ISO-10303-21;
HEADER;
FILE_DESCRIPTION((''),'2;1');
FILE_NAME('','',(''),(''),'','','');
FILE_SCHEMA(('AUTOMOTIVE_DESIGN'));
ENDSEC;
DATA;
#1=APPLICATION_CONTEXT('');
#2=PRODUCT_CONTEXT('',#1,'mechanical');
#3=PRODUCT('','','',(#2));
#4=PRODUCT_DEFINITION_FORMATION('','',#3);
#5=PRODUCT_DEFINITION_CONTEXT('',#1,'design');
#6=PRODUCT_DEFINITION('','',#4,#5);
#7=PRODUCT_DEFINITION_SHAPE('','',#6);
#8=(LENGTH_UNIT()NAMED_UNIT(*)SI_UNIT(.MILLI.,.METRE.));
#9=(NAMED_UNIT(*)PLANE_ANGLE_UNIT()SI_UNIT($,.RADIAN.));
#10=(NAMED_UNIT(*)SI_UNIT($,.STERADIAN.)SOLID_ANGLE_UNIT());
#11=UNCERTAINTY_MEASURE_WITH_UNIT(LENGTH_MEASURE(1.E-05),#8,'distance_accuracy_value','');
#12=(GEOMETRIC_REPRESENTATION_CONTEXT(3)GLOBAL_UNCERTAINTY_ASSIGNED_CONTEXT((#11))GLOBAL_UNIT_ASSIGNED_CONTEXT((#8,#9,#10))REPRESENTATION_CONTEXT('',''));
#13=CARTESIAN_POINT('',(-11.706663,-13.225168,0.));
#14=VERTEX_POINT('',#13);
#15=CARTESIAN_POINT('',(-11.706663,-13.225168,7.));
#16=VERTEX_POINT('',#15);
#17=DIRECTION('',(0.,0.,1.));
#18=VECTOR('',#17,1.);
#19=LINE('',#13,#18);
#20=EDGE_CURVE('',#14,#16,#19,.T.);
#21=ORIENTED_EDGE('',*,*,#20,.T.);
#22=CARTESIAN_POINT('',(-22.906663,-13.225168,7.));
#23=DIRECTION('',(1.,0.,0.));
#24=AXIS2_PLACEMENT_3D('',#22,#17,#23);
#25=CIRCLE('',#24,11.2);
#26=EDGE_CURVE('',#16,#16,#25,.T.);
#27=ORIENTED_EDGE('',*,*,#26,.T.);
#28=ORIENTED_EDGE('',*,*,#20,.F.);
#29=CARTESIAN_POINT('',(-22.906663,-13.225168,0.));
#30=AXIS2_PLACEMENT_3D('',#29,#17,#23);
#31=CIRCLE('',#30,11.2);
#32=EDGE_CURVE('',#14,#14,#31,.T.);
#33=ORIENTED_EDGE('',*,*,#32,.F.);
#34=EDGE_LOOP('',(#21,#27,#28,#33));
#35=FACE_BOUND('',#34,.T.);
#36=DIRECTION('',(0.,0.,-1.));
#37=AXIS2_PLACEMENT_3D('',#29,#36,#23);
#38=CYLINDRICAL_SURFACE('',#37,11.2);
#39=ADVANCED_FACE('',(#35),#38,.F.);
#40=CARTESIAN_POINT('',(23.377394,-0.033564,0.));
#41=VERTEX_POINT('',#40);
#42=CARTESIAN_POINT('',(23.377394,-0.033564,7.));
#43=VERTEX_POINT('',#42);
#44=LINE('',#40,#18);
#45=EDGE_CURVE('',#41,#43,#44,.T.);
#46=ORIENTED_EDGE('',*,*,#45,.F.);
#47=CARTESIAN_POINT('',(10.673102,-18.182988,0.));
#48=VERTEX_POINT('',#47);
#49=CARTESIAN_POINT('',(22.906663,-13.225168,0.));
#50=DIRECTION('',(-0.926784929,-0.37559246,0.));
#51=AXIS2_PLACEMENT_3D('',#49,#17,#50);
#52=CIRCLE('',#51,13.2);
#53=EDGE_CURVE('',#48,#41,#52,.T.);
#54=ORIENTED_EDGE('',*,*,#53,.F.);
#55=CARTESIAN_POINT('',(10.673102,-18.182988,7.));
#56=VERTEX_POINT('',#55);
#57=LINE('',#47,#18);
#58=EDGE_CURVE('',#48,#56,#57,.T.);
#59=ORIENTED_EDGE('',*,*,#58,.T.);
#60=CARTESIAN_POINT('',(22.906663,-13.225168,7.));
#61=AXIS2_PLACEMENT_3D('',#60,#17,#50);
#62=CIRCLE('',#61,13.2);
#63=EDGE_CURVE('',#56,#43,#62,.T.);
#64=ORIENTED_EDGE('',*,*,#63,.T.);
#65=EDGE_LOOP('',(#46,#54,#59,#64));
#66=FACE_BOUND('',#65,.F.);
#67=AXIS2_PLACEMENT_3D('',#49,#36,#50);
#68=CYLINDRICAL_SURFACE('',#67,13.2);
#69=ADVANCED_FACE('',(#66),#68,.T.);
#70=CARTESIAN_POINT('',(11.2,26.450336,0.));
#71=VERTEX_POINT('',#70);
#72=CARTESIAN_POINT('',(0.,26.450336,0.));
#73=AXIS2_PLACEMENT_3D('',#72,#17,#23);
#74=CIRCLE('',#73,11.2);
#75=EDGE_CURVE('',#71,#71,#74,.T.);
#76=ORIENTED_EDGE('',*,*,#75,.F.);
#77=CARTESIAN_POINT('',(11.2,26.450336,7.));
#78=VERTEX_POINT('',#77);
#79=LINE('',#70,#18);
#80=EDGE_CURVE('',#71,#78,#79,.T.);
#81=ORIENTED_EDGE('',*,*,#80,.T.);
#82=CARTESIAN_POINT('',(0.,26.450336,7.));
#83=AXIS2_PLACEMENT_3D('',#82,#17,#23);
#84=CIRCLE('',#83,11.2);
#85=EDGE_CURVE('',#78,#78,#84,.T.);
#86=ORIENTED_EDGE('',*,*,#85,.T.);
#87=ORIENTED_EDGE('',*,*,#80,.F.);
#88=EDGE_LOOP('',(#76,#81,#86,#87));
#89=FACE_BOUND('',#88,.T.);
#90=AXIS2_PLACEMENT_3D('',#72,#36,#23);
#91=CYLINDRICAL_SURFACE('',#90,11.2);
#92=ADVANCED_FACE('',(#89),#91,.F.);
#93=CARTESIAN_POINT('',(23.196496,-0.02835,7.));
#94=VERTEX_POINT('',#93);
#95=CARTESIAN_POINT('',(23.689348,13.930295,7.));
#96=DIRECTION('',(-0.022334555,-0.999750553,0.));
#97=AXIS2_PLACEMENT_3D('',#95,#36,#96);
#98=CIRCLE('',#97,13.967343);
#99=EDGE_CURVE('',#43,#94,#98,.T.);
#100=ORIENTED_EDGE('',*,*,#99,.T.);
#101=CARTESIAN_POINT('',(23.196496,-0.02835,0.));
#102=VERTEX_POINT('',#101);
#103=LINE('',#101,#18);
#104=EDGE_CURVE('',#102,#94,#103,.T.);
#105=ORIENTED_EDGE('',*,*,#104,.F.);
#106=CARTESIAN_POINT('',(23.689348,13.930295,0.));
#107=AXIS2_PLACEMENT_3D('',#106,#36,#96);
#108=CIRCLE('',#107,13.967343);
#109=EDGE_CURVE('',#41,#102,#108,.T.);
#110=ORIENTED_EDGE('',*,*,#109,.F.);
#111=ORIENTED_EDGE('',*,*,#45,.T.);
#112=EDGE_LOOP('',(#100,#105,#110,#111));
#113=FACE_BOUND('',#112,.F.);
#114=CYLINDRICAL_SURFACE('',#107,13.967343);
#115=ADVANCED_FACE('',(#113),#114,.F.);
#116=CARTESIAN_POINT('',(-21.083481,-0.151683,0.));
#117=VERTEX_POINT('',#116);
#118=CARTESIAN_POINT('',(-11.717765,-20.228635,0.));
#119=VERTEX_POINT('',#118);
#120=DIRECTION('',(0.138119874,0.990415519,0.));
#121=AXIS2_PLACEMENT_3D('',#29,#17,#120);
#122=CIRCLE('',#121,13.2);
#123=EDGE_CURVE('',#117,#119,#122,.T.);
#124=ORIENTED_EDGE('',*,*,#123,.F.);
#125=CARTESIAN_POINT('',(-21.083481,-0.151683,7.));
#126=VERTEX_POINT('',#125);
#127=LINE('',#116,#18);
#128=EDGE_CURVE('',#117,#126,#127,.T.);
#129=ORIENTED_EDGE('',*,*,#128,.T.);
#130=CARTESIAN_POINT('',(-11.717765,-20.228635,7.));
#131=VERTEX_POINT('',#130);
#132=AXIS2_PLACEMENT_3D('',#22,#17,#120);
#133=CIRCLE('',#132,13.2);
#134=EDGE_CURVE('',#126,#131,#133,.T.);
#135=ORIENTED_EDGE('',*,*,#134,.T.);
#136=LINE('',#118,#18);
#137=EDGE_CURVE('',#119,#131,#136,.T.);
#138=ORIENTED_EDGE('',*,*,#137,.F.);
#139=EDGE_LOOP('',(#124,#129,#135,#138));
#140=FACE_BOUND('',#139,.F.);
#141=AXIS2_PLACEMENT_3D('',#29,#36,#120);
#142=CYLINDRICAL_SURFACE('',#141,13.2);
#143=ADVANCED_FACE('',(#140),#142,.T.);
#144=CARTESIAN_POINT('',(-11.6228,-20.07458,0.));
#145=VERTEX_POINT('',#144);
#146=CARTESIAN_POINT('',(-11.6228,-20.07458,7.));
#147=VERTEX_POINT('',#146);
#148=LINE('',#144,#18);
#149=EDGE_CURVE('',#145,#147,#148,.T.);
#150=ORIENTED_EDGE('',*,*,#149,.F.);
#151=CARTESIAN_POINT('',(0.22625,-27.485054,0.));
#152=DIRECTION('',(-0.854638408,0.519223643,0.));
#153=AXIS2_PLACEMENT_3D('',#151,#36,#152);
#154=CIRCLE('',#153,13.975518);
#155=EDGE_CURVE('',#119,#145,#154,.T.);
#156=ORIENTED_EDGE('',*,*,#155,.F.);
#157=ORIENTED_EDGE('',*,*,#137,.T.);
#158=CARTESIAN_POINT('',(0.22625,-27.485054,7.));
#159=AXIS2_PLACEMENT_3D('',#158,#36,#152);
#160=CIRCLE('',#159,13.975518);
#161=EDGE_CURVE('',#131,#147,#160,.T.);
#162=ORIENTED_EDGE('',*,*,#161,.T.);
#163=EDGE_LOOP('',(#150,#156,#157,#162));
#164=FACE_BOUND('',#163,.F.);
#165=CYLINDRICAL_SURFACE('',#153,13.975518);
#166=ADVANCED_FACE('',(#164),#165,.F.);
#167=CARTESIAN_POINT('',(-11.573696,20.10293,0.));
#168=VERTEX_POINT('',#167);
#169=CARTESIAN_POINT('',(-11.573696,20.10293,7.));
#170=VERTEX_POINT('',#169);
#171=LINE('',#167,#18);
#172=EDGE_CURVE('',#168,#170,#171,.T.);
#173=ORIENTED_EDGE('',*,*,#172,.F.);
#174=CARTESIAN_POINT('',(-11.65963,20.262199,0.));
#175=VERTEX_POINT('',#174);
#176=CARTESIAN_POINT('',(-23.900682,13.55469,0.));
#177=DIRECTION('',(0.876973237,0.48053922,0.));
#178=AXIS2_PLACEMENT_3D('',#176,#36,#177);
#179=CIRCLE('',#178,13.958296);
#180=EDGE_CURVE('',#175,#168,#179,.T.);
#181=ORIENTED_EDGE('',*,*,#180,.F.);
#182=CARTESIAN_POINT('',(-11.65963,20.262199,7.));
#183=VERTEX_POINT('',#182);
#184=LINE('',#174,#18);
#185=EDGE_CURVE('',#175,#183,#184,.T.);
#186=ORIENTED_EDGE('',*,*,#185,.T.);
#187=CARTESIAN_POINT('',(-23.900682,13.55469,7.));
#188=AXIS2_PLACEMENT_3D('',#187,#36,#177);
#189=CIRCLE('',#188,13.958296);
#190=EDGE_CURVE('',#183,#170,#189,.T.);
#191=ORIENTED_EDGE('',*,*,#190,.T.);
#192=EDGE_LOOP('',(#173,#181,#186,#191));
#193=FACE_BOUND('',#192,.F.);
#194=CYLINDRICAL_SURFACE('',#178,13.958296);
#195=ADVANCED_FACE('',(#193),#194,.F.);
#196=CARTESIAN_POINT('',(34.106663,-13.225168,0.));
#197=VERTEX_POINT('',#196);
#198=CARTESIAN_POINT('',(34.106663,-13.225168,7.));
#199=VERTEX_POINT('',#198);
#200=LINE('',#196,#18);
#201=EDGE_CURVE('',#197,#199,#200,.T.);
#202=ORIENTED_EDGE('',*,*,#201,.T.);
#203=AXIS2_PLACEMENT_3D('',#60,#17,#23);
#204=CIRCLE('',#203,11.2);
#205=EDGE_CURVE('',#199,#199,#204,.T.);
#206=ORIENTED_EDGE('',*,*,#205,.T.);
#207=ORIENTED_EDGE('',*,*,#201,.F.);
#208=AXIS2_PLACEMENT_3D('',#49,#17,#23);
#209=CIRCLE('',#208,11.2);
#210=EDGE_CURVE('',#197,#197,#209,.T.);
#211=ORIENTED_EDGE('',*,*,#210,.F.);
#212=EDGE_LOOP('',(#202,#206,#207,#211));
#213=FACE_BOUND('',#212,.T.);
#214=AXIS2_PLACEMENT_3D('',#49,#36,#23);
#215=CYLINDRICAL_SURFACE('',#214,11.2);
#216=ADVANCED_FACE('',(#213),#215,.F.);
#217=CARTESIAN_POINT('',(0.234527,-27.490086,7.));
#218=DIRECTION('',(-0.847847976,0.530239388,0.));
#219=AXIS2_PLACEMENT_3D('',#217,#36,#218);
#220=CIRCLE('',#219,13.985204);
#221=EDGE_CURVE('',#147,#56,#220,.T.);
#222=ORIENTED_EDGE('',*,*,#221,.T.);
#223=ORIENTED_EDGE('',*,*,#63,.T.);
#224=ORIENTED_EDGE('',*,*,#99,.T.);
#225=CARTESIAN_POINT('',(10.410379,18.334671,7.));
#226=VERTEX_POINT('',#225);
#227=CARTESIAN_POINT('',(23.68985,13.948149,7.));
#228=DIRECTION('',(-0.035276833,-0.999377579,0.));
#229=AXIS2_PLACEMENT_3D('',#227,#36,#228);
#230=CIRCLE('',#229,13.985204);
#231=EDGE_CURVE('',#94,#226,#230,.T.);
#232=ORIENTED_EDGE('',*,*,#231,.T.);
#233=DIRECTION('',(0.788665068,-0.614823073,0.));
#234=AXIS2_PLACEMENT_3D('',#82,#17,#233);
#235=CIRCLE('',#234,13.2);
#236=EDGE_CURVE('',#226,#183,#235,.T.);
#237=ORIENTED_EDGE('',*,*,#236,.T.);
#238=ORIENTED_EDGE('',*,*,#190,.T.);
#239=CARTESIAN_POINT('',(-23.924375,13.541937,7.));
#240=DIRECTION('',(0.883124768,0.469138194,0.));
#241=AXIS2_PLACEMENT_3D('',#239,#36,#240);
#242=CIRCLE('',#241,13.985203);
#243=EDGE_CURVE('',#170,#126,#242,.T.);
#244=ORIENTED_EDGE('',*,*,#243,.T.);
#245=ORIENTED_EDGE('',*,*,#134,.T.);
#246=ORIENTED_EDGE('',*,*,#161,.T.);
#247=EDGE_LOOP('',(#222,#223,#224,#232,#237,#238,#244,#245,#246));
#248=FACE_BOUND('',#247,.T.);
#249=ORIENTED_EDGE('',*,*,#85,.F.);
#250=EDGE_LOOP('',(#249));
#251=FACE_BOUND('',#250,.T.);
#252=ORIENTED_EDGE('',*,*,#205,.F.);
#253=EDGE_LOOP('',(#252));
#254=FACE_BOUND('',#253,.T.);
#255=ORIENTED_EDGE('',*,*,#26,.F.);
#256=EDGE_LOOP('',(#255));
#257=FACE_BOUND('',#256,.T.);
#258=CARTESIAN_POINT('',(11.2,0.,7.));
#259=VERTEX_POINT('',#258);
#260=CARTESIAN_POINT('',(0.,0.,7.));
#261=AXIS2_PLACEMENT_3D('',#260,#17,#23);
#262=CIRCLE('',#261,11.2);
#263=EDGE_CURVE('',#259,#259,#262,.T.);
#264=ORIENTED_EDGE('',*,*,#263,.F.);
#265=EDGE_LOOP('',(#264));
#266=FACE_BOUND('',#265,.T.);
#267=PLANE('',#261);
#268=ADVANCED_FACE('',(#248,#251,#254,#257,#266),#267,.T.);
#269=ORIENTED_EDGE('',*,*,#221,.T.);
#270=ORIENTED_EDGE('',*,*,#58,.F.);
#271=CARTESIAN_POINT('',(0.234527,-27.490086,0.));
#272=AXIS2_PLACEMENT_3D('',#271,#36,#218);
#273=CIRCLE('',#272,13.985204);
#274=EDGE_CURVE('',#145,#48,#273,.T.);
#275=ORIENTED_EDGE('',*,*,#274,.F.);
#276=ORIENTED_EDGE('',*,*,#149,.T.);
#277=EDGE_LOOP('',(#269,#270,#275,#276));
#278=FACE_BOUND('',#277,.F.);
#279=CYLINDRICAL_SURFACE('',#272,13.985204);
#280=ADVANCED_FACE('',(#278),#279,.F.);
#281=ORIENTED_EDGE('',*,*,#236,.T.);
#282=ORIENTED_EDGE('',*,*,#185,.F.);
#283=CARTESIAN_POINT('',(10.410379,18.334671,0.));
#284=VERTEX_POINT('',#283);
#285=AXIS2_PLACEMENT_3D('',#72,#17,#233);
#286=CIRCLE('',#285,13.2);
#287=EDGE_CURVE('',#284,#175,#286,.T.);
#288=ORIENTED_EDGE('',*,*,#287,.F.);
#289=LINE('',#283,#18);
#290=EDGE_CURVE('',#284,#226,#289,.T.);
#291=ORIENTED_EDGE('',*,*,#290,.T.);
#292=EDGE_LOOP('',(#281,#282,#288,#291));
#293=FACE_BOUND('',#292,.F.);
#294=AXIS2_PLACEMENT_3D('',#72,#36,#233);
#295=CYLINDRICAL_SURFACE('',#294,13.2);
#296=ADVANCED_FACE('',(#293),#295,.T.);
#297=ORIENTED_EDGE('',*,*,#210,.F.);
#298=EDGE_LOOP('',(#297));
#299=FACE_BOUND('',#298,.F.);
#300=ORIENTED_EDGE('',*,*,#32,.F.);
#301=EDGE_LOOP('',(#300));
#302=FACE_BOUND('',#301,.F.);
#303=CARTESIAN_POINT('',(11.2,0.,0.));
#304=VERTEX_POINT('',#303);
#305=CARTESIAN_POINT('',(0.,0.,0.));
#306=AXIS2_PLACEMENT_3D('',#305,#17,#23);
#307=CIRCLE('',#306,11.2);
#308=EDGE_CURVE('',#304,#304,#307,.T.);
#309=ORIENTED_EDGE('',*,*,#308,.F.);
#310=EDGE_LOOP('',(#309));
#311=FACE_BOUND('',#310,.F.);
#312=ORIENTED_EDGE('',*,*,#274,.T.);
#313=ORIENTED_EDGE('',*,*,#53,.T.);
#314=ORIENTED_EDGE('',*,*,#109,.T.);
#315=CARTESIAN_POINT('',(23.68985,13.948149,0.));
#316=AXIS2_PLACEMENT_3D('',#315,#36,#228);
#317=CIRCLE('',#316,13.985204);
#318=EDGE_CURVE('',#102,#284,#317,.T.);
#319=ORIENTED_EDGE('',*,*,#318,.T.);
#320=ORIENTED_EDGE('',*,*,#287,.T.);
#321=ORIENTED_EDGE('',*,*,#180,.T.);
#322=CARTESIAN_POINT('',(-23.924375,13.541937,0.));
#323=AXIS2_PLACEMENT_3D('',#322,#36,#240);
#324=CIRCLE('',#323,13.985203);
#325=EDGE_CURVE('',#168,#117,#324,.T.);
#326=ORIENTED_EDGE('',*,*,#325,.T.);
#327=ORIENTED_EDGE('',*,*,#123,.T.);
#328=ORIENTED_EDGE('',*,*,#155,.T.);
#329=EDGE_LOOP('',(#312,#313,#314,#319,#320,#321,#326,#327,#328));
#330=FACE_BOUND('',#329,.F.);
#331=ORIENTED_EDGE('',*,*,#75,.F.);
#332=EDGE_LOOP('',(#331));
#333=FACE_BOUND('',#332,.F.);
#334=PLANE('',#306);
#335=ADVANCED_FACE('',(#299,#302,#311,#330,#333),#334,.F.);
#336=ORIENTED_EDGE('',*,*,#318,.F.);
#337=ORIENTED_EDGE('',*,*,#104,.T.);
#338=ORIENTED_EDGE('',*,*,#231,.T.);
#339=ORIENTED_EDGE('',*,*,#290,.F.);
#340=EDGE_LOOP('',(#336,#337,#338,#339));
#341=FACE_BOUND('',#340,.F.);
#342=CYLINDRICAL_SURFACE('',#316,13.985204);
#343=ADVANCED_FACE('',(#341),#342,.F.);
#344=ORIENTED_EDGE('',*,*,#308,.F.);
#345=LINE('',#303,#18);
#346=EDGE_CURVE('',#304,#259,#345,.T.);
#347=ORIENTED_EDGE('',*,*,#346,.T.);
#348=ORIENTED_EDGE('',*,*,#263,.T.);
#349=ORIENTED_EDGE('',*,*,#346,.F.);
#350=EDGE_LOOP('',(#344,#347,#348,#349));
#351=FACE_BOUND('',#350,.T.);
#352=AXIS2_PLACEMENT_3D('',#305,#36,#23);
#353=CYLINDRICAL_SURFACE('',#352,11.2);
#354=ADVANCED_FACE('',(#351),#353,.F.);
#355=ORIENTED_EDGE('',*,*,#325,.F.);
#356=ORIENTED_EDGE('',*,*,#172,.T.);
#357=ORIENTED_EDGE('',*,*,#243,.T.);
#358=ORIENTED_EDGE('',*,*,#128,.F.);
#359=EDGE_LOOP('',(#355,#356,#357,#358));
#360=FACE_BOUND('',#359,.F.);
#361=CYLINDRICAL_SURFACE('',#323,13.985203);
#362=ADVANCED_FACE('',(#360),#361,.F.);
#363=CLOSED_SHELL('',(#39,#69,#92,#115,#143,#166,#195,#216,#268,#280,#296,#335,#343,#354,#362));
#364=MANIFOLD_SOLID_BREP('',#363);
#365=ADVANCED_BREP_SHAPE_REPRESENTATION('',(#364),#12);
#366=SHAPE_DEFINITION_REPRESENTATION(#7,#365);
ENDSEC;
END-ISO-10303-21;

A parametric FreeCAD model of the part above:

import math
import FreeCAD as App
import Part
import Sketcher

doc = App.newDocument("Part")
body = doc.addObject("PartDesign::Body", "Body")

sketch1 = body.newObject("Sketcher::SketchObject", "Sketch")
sketch1.AttachmentSupport = (doc.getObject("XY_Plane"), [""])
sketch1.MapMode = "FlatFace"
sketch1.addGeometry([
    Part.ArcOfCircle(Part.Circle(App.Vector(23.68985, 13.948149, 0), App.Vector(0, 0, 1), 13.985204), math.radians(161.720393), math.radians(267.978367)),
    Part.ArcOfCircle(Part.Circle(App.Vector(0, 26.450336, 0), App.Vector(0, 0, 1), 13.2), math.radians(-37.939066), math.radians(207.956315)),
    Part.ArcOfCircle(Part.Circle(App.Vector(-23.900682, 13.55469, 0), App.Vector(0, 0, 1), 13.958296), math.radians(27.977765), math.radians(28.720625)),
    Part.ArcOfCircle(Part.Circle(App.Vector(-23.924375, 13.541937, 0), App.Vector(0, 0, 1), 13.985203), math.radians(-78.279612), math.radians(27.978369)),
    Part.ArcOfCircle(Part.Circle(App.Vector(-22.906663, -13.225168, 0), App.Vector(0, 0, 1), 13.2), math.radians(82.060934), math.radians(327.956315)),
    Part.ArcOfCircle(Part.Circle(App.Vector(0.22625, -27.485054, 0), App.Vector(0, 0, 1), 13.975518), math.radians(147.977865), math.radians(148.719811)),
    Part.ArcOfCircle(Part.Circle(App.Vector(0.234527, -27.490086, 0), App.Vector(0, 0, 1), 13.985204), math.radians(41.720392), math.radians(147.978369)),
    Part.ArcOfCircle(Part.Circle(App.Vector(22.906663, -13.225168, 0), App.Vector(0, 0, 1), 13.2), math.radians(-157.939065), math.radians(87.956316)),
    Part.ArcOfCircle(Part.Circle(App.Vector(23.689348, 13.930295, 0), App.Vector(0, 0, 1), 13.967343), math.radians(-92.022162), math.radians(-91.279782)),
    Part.Circle(App.Vector(-22.906663, -13.225168, 0), App.Vector(0, 0, 1), 11.2),
    Part.Circle(App.Vector(22.906663, -13.225168, 0), App.Vector(0, 0, 1), 11.2),
    Part.Circle(App.Vector(0, 0, 0), App.Vector(0, 0, 1), 11.2),
    Part.Circle(App.Vector(0, 26.450336, 0), App.Vector(0, 0, 1), 11.2),
], False)
sketch1.addConstraint([
    Sketcher.Constraint("Coincident", 0, 1, 1, 1),
    Sketcher.Constraint("Coincident", 1, 2, 2, 2),
    Sketcher.Constraint("Coincident", 2, 1, 3, 2),
    Sketcher.Constraint("Coincident", 3, 1, 4, 1),
    Sketcher.Constraint("Coincident", 4, 2, 5, 2),
    Sketcher.Constraint("Coincident", 5, 1, 6, 2),
    Sketcher.Constraint("Coincident", 6, 1, 7, 1),
    Sketcher.Constraint("Coincident", 7, 2, 8, 2),
    Sketcher.Constraint("Coincident", 8, 1, 0, 2),
    Sketcher.Constraint("Coincident", 11, 3, -1, 1),
    Sketcher.Constraint("Coincident", 9, 3, 4, 3),
    Sketcher.Constraint("Coincident", 10, 3, 7, 3),
    Sketcher.Constraint("Coincident", 12, 3, 1, 3),
    Sketcher.Constraint("PointOnObject", 1, 3, -2),
    Sketcher.Constraint("Diameter", 9, 22.4),
    Sketcher.Constraint("Diameter", 10, 22.4),
    Sketcher.Constraint("Diameter", 11, 22.4),
    Sketcher.Constraint("Diameter", 12, 22.4),
    Sketcher.Constraint("Radius", 1, 13.2),
    Sketcher.Constraint("Radius", 4, 13.2),
    Sketcher.Constraint("Radius", 7, 13.2),
    Sketcher.Constraint("Radius", 5, 13.975518),
    Sketcher.Constraint("Radius", 0, 13.985204),
    Sketcher.Constraint("Radius", 2, 13.958296),
    Sketcher.Constraint("Radius", 3, 13.985203),
    Sketcher.Constraint("Radius", 6, 13.985204),
    Sketcher.Constraint("Radius", 8, 13.967343),
    Sketcher.Constraint("DistanceY", -1, 1, 1, 2, 20.262199),
    Sketcher.Constraint("DistanceX", 5, 1, -1, 1, 11.6228),
    Sketcher.Constraint("DistanceX", -1, 1, 6, 1, 10.673102),
    Sketcher.Constraint("DistanceY", 3, 3, 1, 3, 12.908399),
    Sketcher.Constraint("DistanceX", 5, 3, 0, 3, 23.4636),
    Sketcher.Constraint("DistanceX", 8, 3, 0, 3, 0.000501),
    Sketcher.Constraint("DistanceX", 2, 3, 3, 1, 2.817201),
    Sketcher.Constraint("DistanceX", 4, 3, 4, 2, 11.188898),
    Sketcher.Constraint("DistanceX", 8, 1, 7, 2, 0.180898),
    Sketcher.Constraint("DistanceY", 8, 1, 0, 3, 13.976499),
    Sketcher.Constraint("DistanceX", -1, 1, 0, 3, 23.68985),
    Sketcher.Constraint("DistanceY", -1, 1, 0, 3, 13.948149),
    Sketcher.Constraint("DistanceX", 2, 3, -1, 1, 23.900682),
    Sketcher.Constraint("DistanceY", -1, 1, 2, 3, 13.55469),
    Sketcher.Constraint("DistanceY", -1, 1, 2, 1, 20.10293),
    Sketcher.Constraint("DistanceY", 5, 1, -1, 1, 20.07458),
    Sketcher.Constraint("DistanceY", 6, 1, -1, 1, 18.182988),
])
pad1 = body.newObject("PartDesign::Pad", "Pad")
pad1.Profile = sketch1
pad1.Length = 7

doc.recompute()
